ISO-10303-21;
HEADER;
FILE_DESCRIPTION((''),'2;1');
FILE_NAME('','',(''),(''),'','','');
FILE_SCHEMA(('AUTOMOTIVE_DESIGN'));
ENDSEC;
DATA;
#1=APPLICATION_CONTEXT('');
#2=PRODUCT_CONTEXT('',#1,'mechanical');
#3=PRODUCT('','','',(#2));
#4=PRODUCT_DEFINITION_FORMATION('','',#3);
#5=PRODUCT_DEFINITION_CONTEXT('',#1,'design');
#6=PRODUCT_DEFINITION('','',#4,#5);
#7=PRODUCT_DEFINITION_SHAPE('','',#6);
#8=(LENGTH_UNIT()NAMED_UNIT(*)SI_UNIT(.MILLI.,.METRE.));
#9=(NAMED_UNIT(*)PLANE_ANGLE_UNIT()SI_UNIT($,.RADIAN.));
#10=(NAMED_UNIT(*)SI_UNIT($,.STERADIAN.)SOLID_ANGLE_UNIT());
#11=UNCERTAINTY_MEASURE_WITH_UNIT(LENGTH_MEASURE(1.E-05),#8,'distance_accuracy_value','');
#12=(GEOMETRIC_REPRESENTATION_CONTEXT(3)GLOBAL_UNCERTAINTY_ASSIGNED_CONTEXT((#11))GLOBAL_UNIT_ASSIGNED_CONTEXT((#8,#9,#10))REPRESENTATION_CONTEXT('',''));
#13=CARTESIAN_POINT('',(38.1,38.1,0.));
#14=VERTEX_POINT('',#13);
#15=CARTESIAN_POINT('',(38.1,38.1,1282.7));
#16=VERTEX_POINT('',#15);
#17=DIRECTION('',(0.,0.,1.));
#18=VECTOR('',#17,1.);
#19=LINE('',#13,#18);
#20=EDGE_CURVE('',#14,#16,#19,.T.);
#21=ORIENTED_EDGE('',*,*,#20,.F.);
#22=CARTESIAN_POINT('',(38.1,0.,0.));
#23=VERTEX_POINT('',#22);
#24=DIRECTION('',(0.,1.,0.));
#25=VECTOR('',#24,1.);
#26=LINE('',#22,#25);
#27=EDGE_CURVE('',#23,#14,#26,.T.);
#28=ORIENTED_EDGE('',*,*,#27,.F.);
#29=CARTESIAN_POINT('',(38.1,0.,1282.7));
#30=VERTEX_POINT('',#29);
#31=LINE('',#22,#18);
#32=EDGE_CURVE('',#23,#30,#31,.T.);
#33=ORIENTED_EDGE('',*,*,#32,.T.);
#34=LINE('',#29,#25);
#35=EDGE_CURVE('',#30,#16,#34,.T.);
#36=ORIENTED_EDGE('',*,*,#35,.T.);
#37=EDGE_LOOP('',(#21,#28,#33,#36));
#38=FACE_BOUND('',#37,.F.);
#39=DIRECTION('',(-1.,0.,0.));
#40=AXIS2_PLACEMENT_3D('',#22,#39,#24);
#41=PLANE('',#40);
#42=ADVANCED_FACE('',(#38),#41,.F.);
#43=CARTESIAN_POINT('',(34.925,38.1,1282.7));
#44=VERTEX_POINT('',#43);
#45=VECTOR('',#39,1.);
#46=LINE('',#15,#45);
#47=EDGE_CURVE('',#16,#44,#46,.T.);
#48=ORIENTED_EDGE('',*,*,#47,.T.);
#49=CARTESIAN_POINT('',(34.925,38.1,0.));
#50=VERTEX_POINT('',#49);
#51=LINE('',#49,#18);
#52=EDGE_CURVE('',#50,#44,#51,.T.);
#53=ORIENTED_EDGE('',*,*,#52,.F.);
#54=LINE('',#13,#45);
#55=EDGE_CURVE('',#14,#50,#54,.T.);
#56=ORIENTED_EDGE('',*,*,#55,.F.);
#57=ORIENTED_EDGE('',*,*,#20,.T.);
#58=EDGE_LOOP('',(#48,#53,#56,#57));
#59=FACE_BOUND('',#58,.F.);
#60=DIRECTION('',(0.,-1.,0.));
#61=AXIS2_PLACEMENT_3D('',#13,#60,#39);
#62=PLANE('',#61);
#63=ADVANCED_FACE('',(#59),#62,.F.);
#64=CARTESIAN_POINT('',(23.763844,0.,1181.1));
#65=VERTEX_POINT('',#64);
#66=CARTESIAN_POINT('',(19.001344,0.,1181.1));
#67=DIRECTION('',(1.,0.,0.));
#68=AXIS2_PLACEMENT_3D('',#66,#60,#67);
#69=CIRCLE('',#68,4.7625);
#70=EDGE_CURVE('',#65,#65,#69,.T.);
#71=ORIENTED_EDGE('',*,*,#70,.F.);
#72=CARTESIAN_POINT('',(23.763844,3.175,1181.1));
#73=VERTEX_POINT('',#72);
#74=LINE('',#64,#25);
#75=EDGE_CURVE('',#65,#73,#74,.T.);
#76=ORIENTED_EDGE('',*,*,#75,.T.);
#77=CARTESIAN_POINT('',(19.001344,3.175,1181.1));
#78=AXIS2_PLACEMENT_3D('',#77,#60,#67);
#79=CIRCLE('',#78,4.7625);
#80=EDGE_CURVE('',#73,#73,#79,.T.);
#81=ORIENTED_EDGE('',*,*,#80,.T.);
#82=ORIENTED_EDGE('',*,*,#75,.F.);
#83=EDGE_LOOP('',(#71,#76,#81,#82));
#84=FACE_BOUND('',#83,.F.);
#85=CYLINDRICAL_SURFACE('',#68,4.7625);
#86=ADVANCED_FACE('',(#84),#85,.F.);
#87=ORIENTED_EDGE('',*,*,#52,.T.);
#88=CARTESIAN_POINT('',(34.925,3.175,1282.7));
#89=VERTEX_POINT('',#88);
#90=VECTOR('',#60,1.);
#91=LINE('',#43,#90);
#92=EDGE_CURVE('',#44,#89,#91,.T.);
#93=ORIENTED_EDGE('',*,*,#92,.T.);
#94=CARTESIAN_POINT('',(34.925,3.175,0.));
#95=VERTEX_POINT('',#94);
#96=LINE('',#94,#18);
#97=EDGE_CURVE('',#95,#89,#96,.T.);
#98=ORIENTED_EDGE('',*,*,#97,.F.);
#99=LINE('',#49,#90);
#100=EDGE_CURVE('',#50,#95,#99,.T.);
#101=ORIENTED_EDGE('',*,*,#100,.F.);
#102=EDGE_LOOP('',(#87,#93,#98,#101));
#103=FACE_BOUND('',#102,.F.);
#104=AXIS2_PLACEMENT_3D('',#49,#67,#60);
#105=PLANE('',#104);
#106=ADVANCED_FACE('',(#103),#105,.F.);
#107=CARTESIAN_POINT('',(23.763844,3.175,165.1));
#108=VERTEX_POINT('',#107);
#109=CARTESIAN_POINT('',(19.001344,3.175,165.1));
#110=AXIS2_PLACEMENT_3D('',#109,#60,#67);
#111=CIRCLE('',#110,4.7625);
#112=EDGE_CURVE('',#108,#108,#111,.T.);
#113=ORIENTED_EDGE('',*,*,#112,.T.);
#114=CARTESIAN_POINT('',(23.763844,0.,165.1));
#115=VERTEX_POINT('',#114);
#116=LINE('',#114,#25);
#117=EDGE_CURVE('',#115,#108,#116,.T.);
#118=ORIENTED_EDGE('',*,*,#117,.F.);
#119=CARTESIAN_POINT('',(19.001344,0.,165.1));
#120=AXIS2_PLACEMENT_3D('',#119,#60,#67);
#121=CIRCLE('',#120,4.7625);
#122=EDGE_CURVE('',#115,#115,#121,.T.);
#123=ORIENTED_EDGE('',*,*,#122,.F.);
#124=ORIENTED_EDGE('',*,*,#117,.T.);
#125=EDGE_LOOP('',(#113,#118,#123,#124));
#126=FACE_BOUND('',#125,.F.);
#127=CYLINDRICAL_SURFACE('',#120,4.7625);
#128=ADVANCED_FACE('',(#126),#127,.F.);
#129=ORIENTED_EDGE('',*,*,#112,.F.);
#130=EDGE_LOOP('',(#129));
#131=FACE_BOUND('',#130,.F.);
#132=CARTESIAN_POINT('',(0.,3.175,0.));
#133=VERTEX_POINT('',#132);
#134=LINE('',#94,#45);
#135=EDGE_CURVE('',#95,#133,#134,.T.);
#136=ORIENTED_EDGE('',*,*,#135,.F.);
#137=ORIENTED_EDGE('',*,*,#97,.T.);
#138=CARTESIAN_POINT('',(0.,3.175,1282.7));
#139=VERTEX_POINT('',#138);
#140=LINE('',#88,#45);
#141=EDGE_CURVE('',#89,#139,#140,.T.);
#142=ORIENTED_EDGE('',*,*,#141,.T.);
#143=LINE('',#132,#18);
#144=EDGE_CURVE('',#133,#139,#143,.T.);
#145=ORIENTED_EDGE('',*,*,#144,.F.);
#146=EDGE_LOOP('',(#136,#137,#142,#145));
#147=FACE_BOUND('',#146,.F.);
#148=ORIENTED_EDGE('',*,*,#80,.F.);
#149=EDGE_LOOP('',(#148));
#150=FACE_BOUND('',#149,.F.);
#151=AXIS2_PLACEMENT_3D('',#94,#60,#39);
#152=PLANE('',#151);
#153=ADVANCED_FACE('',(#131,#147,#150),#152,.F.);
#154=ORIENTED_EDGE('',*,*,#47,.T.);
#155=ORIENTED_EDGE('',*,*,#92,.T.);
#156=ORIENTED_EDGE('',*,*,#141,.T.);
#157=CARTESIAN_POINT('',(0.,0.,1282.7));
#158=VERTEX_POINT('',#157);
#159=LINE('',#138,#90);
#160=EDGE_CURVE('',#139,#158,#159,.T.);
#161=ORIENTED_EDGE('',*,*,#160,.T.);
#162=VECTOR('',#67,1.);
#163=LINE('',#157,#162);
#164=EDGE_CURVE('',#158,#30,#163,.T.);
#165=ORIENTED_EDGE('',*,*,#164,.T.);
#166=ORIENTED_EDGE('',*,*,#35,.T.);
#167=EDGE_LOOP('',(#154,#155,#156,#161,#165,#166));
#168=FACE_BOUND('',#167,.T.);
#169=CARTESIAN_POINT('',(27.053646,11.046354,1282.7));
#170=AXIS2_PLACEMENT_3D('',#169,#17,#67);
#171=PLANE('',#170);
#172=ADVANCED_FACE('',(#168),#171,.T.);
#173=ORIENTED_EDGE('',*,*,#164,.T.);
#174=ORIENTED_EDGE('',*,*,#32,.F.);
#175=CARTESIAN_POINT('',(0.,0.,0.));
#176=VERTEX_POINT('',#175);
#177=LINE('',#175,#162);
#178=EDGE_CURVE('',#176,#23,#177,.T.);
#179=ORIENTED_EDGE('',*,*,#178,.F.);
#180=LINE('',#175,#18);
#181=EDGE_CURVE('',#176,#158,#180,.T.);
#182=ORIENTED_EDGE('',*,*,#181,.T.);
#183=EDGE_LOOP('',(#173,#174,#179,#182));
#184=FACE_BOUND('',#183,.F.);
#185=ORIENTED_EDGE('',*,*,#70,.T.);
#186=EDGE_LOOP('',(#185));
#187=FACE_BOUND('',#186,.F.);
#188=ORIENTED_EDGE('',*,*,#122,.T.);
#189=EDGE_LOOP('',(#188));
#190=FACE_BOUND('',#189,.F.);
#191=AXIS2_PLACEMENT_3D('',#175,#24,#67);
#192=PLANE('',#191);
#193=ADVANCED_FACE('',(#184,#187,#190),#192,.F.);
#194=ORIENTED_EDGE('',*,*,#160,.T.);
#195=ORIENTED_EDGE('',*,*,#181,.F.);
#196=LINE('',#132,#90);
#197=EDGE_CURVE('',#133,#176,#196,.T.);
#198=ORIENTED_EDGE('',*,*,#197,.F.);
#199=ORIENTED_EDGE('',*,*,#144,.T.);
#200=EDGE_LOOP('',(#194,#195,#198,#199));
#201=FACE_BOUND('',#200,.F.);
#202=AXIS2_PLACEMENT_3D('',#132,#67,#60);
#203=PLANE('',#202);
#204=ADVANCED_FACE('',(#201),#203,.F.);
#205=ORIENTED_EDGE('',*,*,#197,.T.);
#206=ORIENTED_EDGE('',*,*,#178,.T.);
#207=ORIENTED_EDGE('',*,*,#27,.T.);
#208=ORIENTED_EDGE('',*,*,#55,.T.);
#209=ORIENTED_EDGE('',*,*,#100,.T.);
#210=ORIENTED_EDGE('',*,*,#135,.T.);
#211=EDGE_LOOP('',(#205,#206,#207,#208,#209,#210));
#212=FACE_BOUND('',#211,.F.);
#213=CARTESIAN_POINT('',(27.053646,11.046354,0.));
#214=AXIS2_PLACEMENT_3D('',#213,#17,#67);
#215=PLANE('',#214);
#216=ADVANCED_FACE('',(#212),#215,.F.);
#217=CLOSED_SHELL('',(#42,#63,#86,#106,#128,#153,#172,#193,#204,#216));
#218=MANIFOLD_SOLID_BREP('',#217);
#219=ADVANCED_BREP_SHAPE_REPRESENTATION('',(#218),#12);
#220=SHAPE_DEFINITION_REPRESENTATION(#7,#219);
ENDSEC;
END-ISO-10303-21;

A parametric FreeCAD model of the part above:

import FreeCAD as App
import Part
import Sketcher

V = App.Vector
Q = App.Units.Quantity


def add_polygon(sketch, points):
    """Adds a closed chain of lines whose ends are joined by coincident constraints."""
    first, n = sketch.GeometryCount, len(points)
    for a, b in zip(points, points[1:] + points[:1]):
        sketch.addGeometry(Part.LineSegment(App.Vector(*a, 0), App.Vector(*b, 0)), False)
    for i in range(n):
        sketch.addConstraint(Sketcher.Constraint("Coincident", first + i, 2, first + (i + 1) % n, 1))

doc = App.newDocument("Part")
body = doc.addObject("PartDesign::Body", "Body")

# Sketch on XY plane
sketch1 = body.newObject("Sketcher::SketchObject", "Sketch")
sketch1.AttachmentSupport = (doc.getObject("XY_Plane"), [""])
sketch1.MapMode = "FlatFace"
add_polygon(sketch1, [(0, 3.175), (0, 0), (38.1, 0), (38.1, 38.1), (34.925, 38.1), (34.925, 3.175)])  # lines 0-5
sketch1.addConstraint([
    Sketcher.Constraint("Vertical", 0),
    Sketcher.Constraint("Horizontal", 1),
    Sketcher.Constraint("Vertical", 2),
    Sketcher.Constraint("Horizontal", 3),
    Sketcher.Constraint("Vertical", 4),
    Sketcher.Constraint("Horizontal", 5),
    Sketcher.Constraint("Coincident", 0, 2, -1, 1),
    Sketcher.Constraint("Equal", 3, 0),
    Sketcher.Constraint("Equal", 1, 2),
    Sketcher.Constraint("DistanceX", 1, 1, 1, 2, Q("1.5 in")),
    Sketcher.Constraint("DistanceX", 3, 2, 3, 1, Q("0.125 in")),
])
pad1 = body.newObject("PartDesign::Pad", "Pad")
pad1.Profile = sketch1
pad1.Length = Q("50.5 in")

# Sketch on XZ plane
sketch2 = body.newObject("Sketcher::SketchObject", "Sketch001")
sketch2.AttachmentSupport = (doc.getObject("XZ_Plane"), [""])
sketch2.MapMode = "FlatFace"
sketch2.addGeometry([
    Part.Circle(V(19.001344, 1181.1, 0), V(0, 0, 1), 4.7625),
    Part.Circle(V(19.001344, 165.1, 0), V(0, 0, 1), 4.7625),
], False)
sketch2.addConstraint([
    Sketcher.Constraint("Equal", 0, 1),
    Sketcher.Constraint("Vertical", 0, 3, 1, 3),
    Sketcher.Constraint("Diameter", 0, Q("0.375 in")),
    Sketcher.Constraint("DistanceY", 1, 3, 0, 3, Q("40 in")),
    Sketcher.Constraint("DistanceY", -1, 1, 0, 3, Q("46.5 in")),
    Sketcher.Constraint("DistanceX", -1, 1, 0, 3, 19.001344),
])
pocket1 = body.newObject("PartDesign::Pocket", "Pocket")
pocket1.Profile = sketch2
pocket1.Type = "ThroughAll"

doc.recompute()
